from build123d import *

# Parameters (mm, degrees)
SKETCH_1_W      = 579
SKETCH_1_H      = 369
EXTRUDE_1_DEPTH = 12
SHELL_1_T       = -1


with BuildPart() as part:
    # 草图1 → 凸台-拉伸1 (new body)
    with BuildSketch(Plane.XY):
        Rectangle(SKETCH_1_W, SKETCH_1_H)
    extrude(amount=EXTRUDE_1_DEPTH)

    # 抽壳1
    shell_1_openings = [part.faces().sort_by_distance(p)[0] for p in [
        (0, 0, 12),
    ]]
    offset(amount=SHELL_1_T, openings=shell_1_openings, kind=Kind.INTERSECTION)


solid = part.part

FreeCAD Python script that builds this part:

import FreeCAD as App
import Part
import Sketcher

V = App.Vector


def faces_at(feature, points):
    """Names of the faces that lie closest to the given points."""
    faces = feature.Shape.Faces
    near = lambda p: min(range(len(faces)), key=lambda i: faces[i].distToShape(Part.Vertex(*p))[0])
    return sorted({f"Face{near(p) + 1}" for p in points})

doc = App.newDocument("Part")
body = doc.addObject("PartDesign::Body", "Body")

# Sketch on XY plane
sketch1 = body.newObject("Sketcher::SketchObject", "Sketch")
sketch1.AttachmentSupport = (doc.getObject("XY_Plane"), [""])
sketch1.MapMode = "FlatFace"
sketch1.addGeometry(Part.LineSegment(V(-290, 184, 0), V(-290, -184, 0)), False)
sketch1.addGeometry(Part.LineSegment(V(-290, -184, 0), V(290, -184, 0)), False)
sketch1.addGeometry(Part.LineSegment(V(290, -184, 0), V(290, 184, 0)), False)
sketch1.addGeometry(Part.LineSegment(V(290, 184, 0), V(-290, 184, 0)), False)
sketch1.addConstraint(Sketcher.Constraint("Coincident", 0, 2, 1, 1))
sketch1.addConstraint(Sketcher.Constraint("Coincident", 1, 2, 2, 1))
sketch1.addConstraint(Sketcher.Constraint("Coincident", 2, 2, 3, 1))
sketch1.addConstraint(Sketcher.Constraint("Coincident", 3, 2, 0, 1))
sketch1.addConstraint(Sketcher.Constraint("Vertical", 0))
sketch1.addConstraint(Sketcher.Constraint("Horizontal", 1))
sketch1.addConstraint(Sketcher.Constraint("Vertical", 2))
sketch1.addConstraint(Sketcher.Constraint("Horizontal", 3))
sketch1.addConstraint(Sketcher.Constraint("Symmetric", 0, 2, 2, 2, -1, 1))
sketch1.addConstraint(Sketcher.Constraint("DistanceX", 1, 1, 1, 2, 579.0))
sketch1.addConstraint(Sketcher.Constraint("DistanceY", 0, 2, 0, 1, 369.0))
pad1 = body.newObject("PartDesign::Pad", "Pad")
pad1.Profile = sketch1
pad1.Length = 12
doc.recompute()

thickness = body.newObject("PartDesign::Thickness", "Thickness")
thickness.Base = (pad1, faces_at(pad1, [(0, 0, 12)]))
thickness.Value = 1
thickness.Reversed = True
thickness.Join = "Intersection"

doc.recompute()
